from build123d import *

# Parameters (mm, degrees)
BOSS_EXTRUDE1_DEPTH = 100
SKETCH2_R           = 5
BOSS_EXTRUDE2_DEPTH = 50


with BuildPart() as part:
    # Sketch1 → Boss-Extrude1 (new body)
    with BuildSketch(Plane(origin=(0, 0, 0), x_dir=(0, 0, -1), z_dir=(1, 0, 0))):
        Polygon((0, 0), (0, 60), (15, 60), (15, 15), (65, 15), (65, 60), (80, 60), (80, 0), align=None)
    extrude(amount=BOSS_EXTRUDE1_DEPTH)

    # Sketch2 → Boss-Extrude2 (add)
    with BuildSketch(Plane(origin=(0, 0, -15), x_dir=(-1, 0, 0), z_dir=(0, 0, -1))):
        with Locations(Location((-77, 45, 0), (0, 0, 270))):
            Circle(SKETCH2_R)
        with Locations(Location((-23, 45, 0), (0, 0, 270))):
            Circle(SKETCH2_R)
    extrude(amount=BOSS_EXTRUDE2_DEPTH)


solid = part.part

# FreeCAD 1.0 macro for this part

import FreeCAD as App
import Part
import Sketcher
Q = App.Units.Quantity


def add_polygon(sketch, points):
    """Adds a closed chain of lines whose ends are joined by coincident constraints."""
    first, n = sketch.GeometryCount, len(points)
    for a, b in zip(points, points[1:] + points[:1]):
        sketch.addGeometry(Part.LineSegment(App.Vector(*a, 0), App.Vector(*b, 0)), False)
    for i in range(n):
        sketch.addConstraint(Sketcher.Constraint("Coincident", first + i, 2, first + (i + 1) % n, 1))

doc = App.newDocument("Part")
body = doc.addObject("PartDesign::Body", "Body")

# Sketch on YZ plane
sketch1 = doc.addObject("Sketcher::SketchObject", "Sketch")
body.addObject(sketch1)
sketch1.AttachmentSupport = (doc.YZ_Plane, [""])
sketch1.MapMode = "FlatFace"
add_polygon(sketch1, [(60, 0), (0, 0), (0, -80), (60, -80), (60, -65), (15, -65), (15, -15), (60, -15)])  # lines 0-7
sketch1.addConstraint([
    Sketcher.Constraint("Horizontal", 0),
    Sketcher.Constraint("Vertical", 1),
    Sketcher.Constraint("Horizontal", 2),
    Sketcher.Constraint("Vertical", 3),
    Sketcher.Constraint("Horizontal", 4),
    Sketcher.Constraint("Vertical", 5),
    Sketcher.Constraint("Horizontal", 6),
    Sketcher.Constraint("Vertical", 7),
    Sketcher.Constraint("Coincident", 0, 2, -1, 1),
    Sketcher.Constraint("Vertical", 3, 2, 6, 2),
    Sketcher.Constraint("Equal", 3, 7),
    Sketcher.Constraint("DistanceX", 0, 2, 0, 1, Q("60 mm")),
    Sketcher.Constraint("DistanceX", 4, 2, 4, 1, Q("45 mm")),
    Sketcher.Constraint("DistanceY", 1, 2, 1, 1, Q("80 mm")),
    Sketcher.Constraint("DistanceY", 3, 1, 3, 2, Q("15 mm")),
])
pad1 = doc.addObject("PartDesign::Pad", "Pad")
body.addObject(pad1)
pad1.Profile = sketch1
pad1.Length = 100

# Sketch on XY plane
sketch2 = doc.addObject("Sketcher::SketchObject", "Sketch001")
body.addObject(sketch2)
sketch2.AttachmentSupport = (doc.XY_Plane, [""])
sketch2.MapMode = "FlatFace"
sketch2.AttachmentOffset = App.Placement(App.Vector(0, 0, -15), App.Rotation())
sketch2.addGeometry([
    Part.Circle(App.Vector(77, 45, 0), App.Vector(0, 0, 1), 5),
    Part.Circle(App.Vector(23, 45, 0), App.Vector(0, 0, 1), 5),
], False)
sketch2.addConstraint([
    Sketcher.Constraint("Equal", 0, 1),
    Sketcher.Constraint("Horizontal", 0, 3, 1, 3),
    Sketcher.Constraint("Diameter", 0, Q("10 mm")),
    Sketcher.Constraint("DistanceX", -1, 1, 0, 3, Q("77 mm")),
    Sketcher.Constraint("DistanceY", -1, 1, 0, 3, Q("45 mm")),
    Sketcher.Constraint("DistanceX", -1, 1, 1, 3, Q("23 mm")),
])
pad2 = doc.addObject("PartDesign::Pad", "Pad001")
body.addObject(pad2)
pad2.Profile = sketch2
pad2.Length = 50
pad2.Reversed = True

doc.recompute()
